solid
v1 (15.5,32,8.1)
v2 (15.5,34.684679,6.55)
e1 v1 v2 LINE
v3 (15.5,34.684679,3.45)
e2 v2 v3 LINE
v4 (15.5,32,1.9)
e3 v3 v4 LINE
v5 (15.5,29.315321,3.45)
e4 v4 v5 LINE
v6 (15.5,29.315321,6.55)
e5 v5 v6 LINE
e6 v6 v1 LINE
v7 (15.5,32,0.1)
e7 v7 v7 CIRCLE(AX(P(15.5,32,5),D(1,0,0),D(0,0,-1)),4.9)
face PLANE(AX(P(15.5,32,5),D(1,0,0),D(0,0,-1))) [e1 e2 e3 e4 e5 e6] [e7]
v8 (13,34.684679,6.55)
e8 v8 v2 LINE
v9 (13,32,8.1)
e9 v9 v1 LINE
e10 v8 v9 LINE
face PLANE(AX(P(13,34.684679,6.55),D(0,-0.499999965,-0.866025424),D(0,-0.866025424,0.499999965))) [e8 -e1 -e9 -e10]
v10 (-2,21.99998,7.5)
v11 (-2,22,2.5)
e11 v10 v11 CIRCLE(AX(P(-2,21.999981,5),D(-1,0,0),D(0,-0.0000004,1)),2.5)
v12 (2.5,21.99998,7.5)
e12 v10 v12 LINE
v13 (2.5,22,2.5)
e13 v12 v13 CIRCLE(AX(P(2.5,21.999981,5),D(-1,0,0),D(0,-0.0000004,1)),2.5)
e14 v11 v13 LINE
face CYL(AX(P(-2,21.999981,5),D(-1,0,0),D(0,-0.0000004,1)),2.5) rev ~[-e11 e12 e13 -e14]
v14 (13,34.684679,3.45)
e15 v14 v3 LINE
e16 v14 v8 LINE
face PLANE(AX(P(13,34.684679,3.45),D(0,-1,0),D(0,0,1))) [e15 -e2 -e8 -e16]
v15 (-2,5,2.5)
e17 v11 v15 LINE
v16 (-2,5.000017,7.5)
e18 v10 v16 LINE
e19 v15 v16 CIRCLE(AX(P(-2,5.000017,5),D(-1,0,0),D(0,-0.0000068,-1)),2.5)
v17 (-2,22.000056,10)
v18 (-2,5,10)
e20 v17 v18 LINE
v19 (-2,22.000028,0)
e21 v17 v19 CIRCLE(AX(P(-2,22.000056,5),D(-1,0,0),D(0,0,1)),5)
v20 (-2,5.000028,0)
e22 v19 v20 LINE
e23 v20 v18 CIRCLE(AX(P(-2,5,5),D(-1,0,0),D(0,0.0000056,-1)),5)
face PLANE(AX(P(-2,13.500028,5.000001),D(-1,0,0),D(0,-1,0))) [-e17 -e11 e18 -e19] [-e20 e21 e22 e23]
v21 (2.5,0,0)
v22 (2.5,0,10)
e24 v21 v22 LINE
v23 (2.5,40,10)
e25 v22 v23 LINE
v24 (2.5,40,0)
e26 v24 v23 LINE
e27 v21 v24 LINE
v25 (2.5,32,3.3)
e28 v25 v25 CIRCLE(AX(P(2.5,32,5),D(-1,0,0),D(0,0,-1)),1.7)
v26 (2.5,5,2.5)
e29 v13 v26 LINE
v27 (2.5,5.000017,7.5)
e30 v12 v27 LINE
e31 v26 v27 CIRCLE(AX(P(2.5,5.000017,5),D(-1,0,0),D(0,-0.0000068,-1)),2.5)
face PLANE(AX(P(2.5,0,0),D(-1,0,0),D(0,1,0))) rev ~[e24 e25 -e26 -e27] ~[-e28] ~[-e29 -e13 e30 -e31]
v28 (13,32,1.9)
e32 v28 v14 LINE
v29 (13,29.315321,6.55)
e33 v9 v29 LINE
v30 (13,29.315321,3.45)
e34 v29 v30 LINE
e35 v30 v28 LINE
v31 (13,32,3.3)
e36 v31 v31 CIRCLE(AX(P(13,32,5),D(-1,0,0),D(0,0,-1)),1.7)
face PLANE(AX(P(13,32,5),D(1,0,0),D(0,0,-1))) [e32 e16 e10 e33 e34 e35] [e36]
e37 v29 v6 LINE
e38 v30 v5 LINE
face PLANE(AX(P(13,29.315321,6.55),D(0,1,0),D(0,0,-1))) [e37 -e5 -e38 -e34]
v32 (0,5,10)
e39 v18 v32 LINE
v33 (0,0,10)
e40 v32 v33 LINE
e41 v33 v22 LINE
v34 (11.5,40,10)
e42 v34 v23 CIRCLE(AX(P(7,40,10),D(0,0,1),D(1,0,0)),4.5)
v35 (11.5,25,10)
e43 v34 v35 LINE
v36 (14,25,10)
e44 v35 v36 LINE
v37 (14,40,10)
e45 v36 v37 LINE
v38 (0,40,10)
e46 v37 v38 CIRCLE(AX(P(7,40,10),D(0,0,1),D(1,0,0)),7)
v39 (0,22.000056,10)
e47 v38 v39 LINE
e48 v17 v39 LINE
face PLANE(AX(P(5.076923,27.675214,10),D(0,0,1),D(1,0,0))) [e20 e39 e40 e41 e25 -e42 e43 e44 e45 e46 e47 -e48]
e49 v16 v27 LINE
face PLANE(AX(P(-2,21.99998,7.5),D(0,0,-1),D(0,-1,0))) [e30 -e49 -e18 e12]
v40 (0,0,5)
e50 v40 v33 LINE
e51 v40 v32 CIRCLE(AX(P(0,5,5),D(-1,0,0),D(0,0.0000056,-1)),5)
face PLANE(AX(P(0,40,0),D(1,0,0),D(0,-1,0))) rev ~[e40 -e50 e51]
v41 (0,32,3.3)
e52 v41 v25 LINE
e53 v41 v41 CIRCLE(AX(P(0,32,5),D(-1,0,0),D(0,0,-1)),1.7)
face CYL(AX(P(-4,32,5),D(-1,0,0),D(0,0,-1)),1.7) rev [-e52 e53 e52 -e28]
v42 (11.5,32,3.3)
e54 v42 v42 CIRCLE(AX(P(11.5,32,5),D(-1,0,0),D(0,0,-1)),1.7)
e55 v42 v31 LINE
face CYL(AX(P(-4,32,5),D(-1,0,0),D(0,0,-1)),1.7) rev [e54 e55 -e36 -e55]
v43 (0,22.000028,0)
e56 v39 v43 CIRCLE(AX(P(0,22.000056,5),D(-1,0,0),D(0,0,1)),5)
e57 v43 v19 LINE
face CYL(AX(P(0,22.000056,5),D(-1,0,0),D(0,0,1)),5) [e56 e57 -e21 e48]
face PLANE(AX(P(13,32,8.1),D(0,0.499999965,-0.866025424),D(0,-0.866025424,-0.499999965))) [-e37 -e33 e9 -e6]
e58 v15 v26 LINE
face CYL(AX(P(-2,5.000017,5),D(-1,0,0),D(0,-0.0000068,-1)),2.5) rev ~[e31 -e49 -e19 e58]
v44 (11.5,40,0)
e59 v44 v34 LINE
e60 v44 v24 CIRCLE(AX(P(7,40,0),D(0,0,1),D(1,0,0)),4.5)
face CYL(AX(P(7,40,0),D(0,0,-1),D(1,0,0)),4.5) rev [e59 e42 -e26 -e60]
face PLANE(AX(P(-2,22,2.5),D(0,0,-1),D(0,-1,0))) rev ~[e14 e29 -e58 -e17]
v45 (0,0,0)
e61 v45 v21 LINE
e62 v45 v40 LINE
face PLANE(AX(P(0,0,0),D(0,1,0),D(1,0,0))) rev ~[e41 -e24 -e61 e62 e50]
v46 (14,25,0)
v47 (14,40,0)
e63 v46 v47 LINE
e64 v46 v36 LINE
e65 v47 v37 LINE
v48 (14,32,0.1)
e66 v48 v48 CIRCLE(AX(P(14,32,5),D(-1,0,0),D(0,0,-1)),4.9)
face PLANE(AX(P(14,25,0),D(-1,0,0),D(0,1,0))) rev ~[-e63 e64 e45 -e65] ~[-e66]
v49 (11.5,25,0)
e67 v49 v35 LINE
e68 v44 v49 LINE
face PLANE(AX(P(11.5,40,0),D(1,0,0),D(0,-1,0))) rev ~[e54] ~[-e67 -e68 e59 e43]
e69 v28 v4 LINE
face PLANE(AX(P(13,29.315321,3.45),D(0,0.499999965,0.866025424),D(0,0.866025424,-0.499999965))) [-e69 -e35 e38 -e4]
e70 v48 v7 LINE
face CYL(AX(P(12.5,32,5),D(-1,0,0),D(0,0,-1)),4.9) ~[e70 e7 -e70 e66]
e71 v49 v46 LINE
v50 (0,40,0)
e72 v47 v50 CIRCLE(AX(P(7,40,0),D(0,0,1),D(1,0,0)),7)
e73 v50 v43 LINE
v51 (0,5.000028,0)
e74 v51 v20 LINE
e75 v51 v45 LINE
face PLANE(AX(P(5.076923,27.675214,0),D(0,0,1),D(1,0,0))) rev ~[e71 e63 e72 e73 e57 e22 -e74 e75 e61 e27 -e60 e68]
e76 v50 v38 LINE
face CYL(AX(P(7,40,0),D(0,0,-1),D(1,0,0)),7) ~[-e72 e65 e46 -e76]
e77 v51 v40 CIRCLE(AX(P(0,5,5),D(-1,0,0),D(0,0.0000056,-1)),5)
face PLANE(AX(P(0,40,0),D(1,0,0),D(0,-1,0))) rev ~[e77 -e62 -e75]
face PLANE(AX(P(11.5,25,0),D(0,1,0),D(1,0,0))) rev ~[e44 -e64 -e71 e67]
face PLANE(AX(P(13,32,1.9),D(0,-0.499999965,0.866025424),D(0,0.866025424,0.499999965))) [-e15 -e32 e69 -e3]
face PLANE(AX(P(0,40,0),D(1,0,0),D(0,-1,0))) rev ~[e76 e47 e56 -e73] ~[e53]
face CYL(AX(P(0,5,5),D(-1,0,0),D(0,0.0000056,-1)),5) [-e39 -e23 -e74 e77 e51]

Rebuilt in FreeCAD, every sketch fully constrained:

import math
import FreeCAD as App
import Part
import Sketcher

V = App.Vector
Q = App.Units.Quantity


def add_polygon(sketch, points):
    """Adds a closed chain of lines whose ends are joined by coincident constraints."""
    first, n = sketch.GeometryCount, len(points)
    for a, b in zip(points, points[1:] + points[:1]):
        sketch.addGeometry(Part.LineSegment(App.Vector(*a, 0), App.Vector(*b, 0)), False)
    for i in range(n):
        sketch.addConstraint(Sketcher.Constraint("Coincident", first + i, 2, first + (i + 1) % n, 1))

doc = App.newDocument("Part")
params = doc.addObject("Spreadsheet::Sheet", "Params")
for row, (alias, value) in enumerate([
    ("sketch1_width", "3.1 mm"),
    ("sketch1_length", "3.1 mm"),
    ("pad1_length", "4 mm"),
    ("sketch2_diameter", "3.4 mm"),
    ("pad2_length", "20 mm"),
    ("sketch3_diameter", "9.8 mm"),
    ("pad3_length", "3 mm"),
    ("sketch4_radius", "7 mm"),
    ("sketch4_radius2", "4.5 mm"),
    ("sketch4_height", "40 mm"),
    ("sketch4_height2", "15 mm"),
    ("pad4_length", "10 mm"),
    ("sketch5_radius", "5 mm"),
    ("sketch5_width", "17 mm"),
    ("pad5_length", "4 mm"),
    ("sketch6_radius", "2.5 mm"),
    ("sketch6_width", "17 mm"),
    ("pocket1_length", "5 mm"),
], start=1):
    params.set(f"A{row}", alias)
    params.set(f"B{row}", "=" + value)
    params.setAlias(f"B{row}", alias)

body = doc.addObject("PartDesign::Body", "Body")

sketch1 = doc.addObject("Sketcher::SketchObject", "Sketch")
body.addObject(sketch1)
sketch1.AttachmentSupport = (doc.XY_Plane, [""])
sketch1.MapMode = "FlatFace"
add_polygon(sketch1, [(3.1, 0), (1.6, 2.7), (-1.6, 2.7), (-3.1, 0), (-1.6, -2.7), (1.6, -2.7)])
sketch1.addConstraint([
    Sketcher.Constraint("Horizontal", 1),
    Sketcher.Constraint("Horizontal", 4),
    Sketcher.Constraint("Symmetric", 0, 2, 3, 2, -1, 1),
    Sketcher.Constraint("Symmetric", 2, 2, 5, 2, -1, 1),
    Sketcher.Constraint("PointOnObject", 2, 2, -1),
    Sketcher.Constraint("Parallel", 2, 5),
    Sketcher.Constraint("Vertical", 1, 2, 3, 2),
    Sketcher.Constraint("Angle", 0, Q("119.999998 deg")),
    Sketcher.Constraint("DistanceX", 1, 2, 1, 1, Q("3.1 mm")),
    Sketcher.Constraint("Distance", 0, Q("3.1 mm")),
])
sketch1.setExpression("Constraints[14]", "Params.sketch1_width")
sketch1.setExpression("Constraints[15]", "Params.sketch1_length")
pad1 = doc.addObject("PartDesign::Pad", "Pad")
body.addObject(pad1)
pad1.Profile = sketch1
pad1.setExpression("Length", "Params.pad1_length")
body2 = doc.addObject("PartDesign::Body", "Body001")
doc.recompute()

body.Placement = App.Placement(V(0, 0, 0), App.Rotation(V(0, 1, 0), 90))
boolean = doc.addObject("PartDesign::Boolean", "Boolean")
body2.addObject(boolean)
boolean.Type = "Fuse"
boolean.addObjects([body])
body3 = doc.addObject("PartDesign::Body", "Body002")
doc.recompute()

body2.Placement = App.Placement(V(13, 32, 5), App.Rotation(V(0, 0, 1), 0))
boolean2 = doc.addObject("PartDesign::Boolean", "Boolean001")
body3.addObject(boolean2)
boolean2.Type = "Fuse"
boolean2.addObjects([body2])
body4 = doc.addObject("PartDesign::Body", "Body003")

sketch2 = doc.addObject("Sketcher::SketchObject", "Sketch001")
body4.addObject(sketch2)
sketch2.AttachmentSupport = (doc.getObject("XY_Plane003"), [""])
sketch2.MapMode = "FlatFace"
sketch2.addGeometry(Part.Circle(V(0, 0, 0), V(0, 0, 1), 1.7), False)
sketch2.addConstraint([
    Sketcher.Constraint("Coincident", 0, 3, -1, 1),
    Sketcher.Constraint("Diameter", 0, Q("3.4 mm")),
])
sketch2.setExpression("Constraints[1]", "Params.sketch2_diameter")
pad2 = doc.addObject("PartDesign::Pad", "Pad001")
body4.addObject(pad2)
pad2.Profile = sketch2
pad2.setExpression("Length", "Params.pad2_length")
body5 = doc.addObject("PartDesign::Body", "Body004")
doc.recompute()

body4.Placement = App.Placement(V(0, 0, 0), App.Rotation(V(0, 1, 0), 90))
boolean3 = doc.addObject("PartDesign::Boolean", "Boolean002")
body5.addObject(boolean3)
boolean3.Type = "Fuse"
boolean3.addObjects([body4])
body6 = doc.addObject("PartDesign::Body", "Body005")
doc.recompute()

body5.Placement = App.Placement(V(-4, 32, 5), App.Rotation(V(0, 0, 1), 0))
boolean4 = doc.addObject("PartDesign::Boolean", "Boolean003")
body6.addObject(boolean4)
boolean4.Type = "Fuse"
boolean4.addObjects([body5])
body7 = doc.addObject("PartDesign::Body", "Body006")

sketch3 = doc.addObject("Sketcher::SketchObject", "Sketch002")
body7.addObject(sketch3)
sketch3.AttachmentSupport = (doc.getObject("XY_Plane006"), [""])
sketch3.MapMode = "FlatFace"
sketch3.addGeometry(Part.Circle(V(0, 0, 0), V(0, 0, 1), 4.9), False)
sketch3.addConstraint([
    Sketcher.Constraint("Coincident", 0, 3, -1, 1),
    Sketcher.Constraint("Diameter", 0, Q("9.8 mm")),
])
sketch3.setExpression("Constraints[1]", "Params.sketch3_diameter")
pad3 = doc.addObject("PartDesign::Pad", "Pad002")
body7.addObject(pad3)
pad3.Profile = sketch3
pad3.setExpression("Length", "Params.pad3_length")
body8 = doc.addObject("PartDesign::Body", "Body007")
doc.recompute()

body7.Placement = App.Placement(V(0, 0, 0), App.Rotation(V(0, 1, 0), 90))
boolean5 = doc.addObject("PartDesign::Boolean", "Boolean004")
body8.addObject(boolean5)
boolean5.Type = "Fuse"
boolean5.addObjects([body7])
body9 = doc.addObject("PartDesign::Body", "Body008")
doc.recompute()

body8.Placement = App.Placement(V(12.5, 32, 5), App.Rotation(V(0, 0, 1), 0))
boolean6 = doc.addObject("PartDesign::Boolean", "Boolean005")
body9.addObject(boolean6)
boolean6.Type = "Fuse"
boolean6.addObjects([body8])
body10 = doc.addObject("PartDesign::Body", "Body009")

sketch4 = doc.addObject("Sketcher::SketchObject", "Sketch003")
body10.addObject(sketch4)
sketch4.AttachmentSupport = (doc.getObject("XY_Plane009"), [""])
sketch4.MapMode = "FlatFace"
sketch4.addGeometry([
    Part.LineSegment(V(0, 40, 0), V(0, 0, 0)),
    Part.LineSegment(V(0, 0, 0), V(2.5, 0, 0)),
    Part.LineSegment(V(2.5, 0, 0), V(2.5, 40, 0)),
    Part.ArcOfCircle(Part.Circle(V(7, 40, 0), V(0, 0, 1), 4.5), math.radians(0), math.radians(180)),
    Part.LineSegment(V(11.5, 40, 0), V(11.5, 25, 0)),
    Part.LineSegment(V(11.5, 25, 0), V(14, 25, 0)),
    Part.LineSegment(V(14, 25, 0), V(14, 40, 0)),
    Part.ArcOfCircle(Part.Circle(V(7, 40, 0), V(0, 0, 1), 7), math.radians(0), math.radians(180)),
], False)
sketch4.addConstraint([
    Sketcher.Constraint("Coincident", 0, 2, 1, 1),
    Sketcher.Constraint("Coincident", 1, 2, 2, 1),
    Sketcher.Constraint("Tangent", 2, 2, 3, 2),
    Sketcher.Constraint("Tangent", 3, 1, 4, 1),
    Sketcher.Constraint("Coincident", 4, 2, 5, 1),
    Sketcher.Constraint("Coincident", 5, 2, 6, 1),
    Sketcher.Constraint("Tangent", 6, 2, 7, 1),
    Sketcher.Constraint("Tangent", 7, 2, 0, 1),
    Sketcher.Constraint("Vertical", 0),
    Sketcher.Constraint("Horizontal", 1),
    Sketcher.Constraint("Vertical", 2),
    Sketcher.Constraint("Vertical", 4),
    Sketcher.Constraint("Horizontal", 5),
    Sketcher.Constraint("Vertical", 6),
    Sketcher.Constraint("Coincident", 0, 2, -1, 1),
    Sketcher.Constraint("Coincident", 7, 3, 3, 3),
    Sketcher.Constraint("Radius", 7, Q("7 mm")),
    Sketcher.Constraint("Radius", 3, Q("4.5 mm")),
    Sketcher.Constraint("DistanceY", 0, 2, 0, 1, Q("40 mm")),
    Sketcher.Constraint("DistanceY", 4, 2, 4, 1, Q("15 mm")),
])
sketch4.setExpression("Constraints[16]", "Params.sketch4_radius")
sketch4.setExpression("Constraints[17]", "Params.sketch4_radius2")
sketch4.setExpression("Constraints[18]", "Params.sketch4_height")
sketch4.setExpression("Constraints[19]", "Params.sketch4_height2")
pad4 = doc.addObject("PartDesign::Pad", "Pad003")
body10.addObject(pad4)
pad4.Profile = sketch4
pad4.setExpression("Length", "Params.pad4_length")
doc.recompute()

boolean7 = doc.addObject("PartDesign::Boolean", "Boolean006")
body10.addObject(boolean7)
boolean7.Type = "Fuse"
boolean7.addObjects([body9])
doc.recompute()

boolean8 = doc.addObject("PartDesign::Boolean", "Boolean007")
body10.addObject(boolean8)
boolean8.Type = "Cut"
boolean8.addObjects([body6])
doc.recompute()

boolean9 = doc.addObject("PartDesign::Boolean", "Boolean008")
body10.addObject(boolean9)
boolean9.Type = "Cut"
boolean9.addObjects([body3])

sketch5 = doc.addObject("Sketcher::SketchObject", "Sketch004")
body10.addObject(sketch5)
sketch5.AttachmentSupport = (doc.getObject("YZ_Plane009"), [""])
sketch5.MapMode = "FlatFace"
sketch5.addGeometry([
    Part.ArcOfCircle(Part.Circle(V(22, 5, 0), V(0, 0, 1), 5), math.radians(-90), math.radians(90)),
    Part.LineSegment(V(22, 0, 0), V(5, 0, 0)),
    Part.ArcOfCircle(Part.Circle(V(5, 5, 0), V(0, 0, 1), 5), math.radians(90), math.radians(270)),
    Part.LineSegment(V(5, 10, 0), V(22, 10, 0)),
], False)
sketch5.addConstraint([
    Sketcher.Constraint("Coincident", 0, 1, 1, 1),
    Sketcher.Constraint("Coincident", 1, 2, 2, 2),
    Sketcher.Constraint("Tangent", 2, 1, 3, 1),
    Sketcher.Constraint("Tangent", 3, 2, 0, 2),
    Sketcher.Constraint("Horizontal", 1),
    Sketcher.Constraint("Horizontal", 3),
    Sketcher.Constraint("PointOnObject", 0, 1, -1),
    Sketcher.Constraint("Radius", 0, Q("5 mm")),
    Sketcher.Constraint("DistanceX", 1, 2, 1, 1, Q("17 mm")),
    Sketcher.Constraint("DistanceX", -1, 1, 2, 3, Q("5 mm")),
    Sketcher.Constraint("DistanceX", 3, 1, 3, 2, Q("17.000056 mm")),
    Sketcher.Constraint("DistanceX", -1, 1, 0, 1, Q("22.000028 mm")),
])
sketch5.setExpression("Constraints[7]", "Params.sketch5_radius")
sketch5.setExpression("Constraints[8]", "Params.sketch5_width")
pad5 = doc.addObject("PartDesign::Pad", "Pad004")
body10.addObject(pad5)
pad5.Profile = sketch5
pad5.setExpression("Length", "Params.pad5_length")
pad5.Midplane = True

sketch6 = doc.addObject("Sketcher::SketchObject", "Sketch005")
body10.addObject(sketch6)
sketch6.AttachmentSupport = (doc.getObject("YZ_Plane009"), [""])
sketch6.MapMode = "FlatFace"
sketch6.AttachmentOffset = App.Placement(V(0, 0, -2), App.Rotation())
sketch6.addGeometry([
    Part.ArcOfCircle(Part.Circle(V(22, 5, 0), V(0, 0, 1), 2.5), math.radians(-90), math.radians(90)),
    Part.LineSegment(V(22, 2.5, 0), V(5, 2.5, 0)),
    Part.ArcOfCircle(Part.Circle(V(5, 5, 0), V(0, 0, 1), 2.5), math.radians(90), math.radians(270)),
    Part.LineSegment(V(5, 7.5, 0), V(22, 7.5, 0)),
], False)
sketch6.addConstraint([
    Sketcher.Constraint("Coincident", 0, 1, 1, 1),
    Sketcher.Constraint("Coincident", 1, 2, 2, 2),
    Sketcher.Constraint("Tangent", 2, 1, 3, 1),
    Sketcher.Constraint("Tangent", 3, 2, 0, 2),
    Sketcher.Constraint("Horizontal", 1),
    Sketcher.Constraint("Horizontal", 3),
    Sketcher.Constraint("Radius", 0, Q("2.5 mm")),
    Sketcher.Constraint("DistanceX", 1, 2, 1, 1, Q("17 mm")),
    Sketcher.Constraint("DistanceY", -1, 1, 0, 3, Q("5 mm")),
    Sketcher.Constraint("DistanceX", -1, 1, 0, 1, Q("22 mm")),
    Sketcher.Constraint("DistanceX", 3, 1, 3, 2, Q("16.999963 mm")),
    Sketcher.Constraint("DistanceX", -1, 1, 0, 3, Q("21.999981 mm")),
])
sketch6.setExpression("Constraints[6]", "Params.sketch6_radius")
sketch6.setExpression("Constraints[7]", "Params.sketch6_width")
pocket1 = doc.addObject("PartDesign::Pocket", "Pocket")
body10.addObject(pocket1)
pocket1.Profile = sketch6
pocket1.setExpression("Length", "Params.pocket1_length")
pocket1.Reversed = True

doc.recompute()
